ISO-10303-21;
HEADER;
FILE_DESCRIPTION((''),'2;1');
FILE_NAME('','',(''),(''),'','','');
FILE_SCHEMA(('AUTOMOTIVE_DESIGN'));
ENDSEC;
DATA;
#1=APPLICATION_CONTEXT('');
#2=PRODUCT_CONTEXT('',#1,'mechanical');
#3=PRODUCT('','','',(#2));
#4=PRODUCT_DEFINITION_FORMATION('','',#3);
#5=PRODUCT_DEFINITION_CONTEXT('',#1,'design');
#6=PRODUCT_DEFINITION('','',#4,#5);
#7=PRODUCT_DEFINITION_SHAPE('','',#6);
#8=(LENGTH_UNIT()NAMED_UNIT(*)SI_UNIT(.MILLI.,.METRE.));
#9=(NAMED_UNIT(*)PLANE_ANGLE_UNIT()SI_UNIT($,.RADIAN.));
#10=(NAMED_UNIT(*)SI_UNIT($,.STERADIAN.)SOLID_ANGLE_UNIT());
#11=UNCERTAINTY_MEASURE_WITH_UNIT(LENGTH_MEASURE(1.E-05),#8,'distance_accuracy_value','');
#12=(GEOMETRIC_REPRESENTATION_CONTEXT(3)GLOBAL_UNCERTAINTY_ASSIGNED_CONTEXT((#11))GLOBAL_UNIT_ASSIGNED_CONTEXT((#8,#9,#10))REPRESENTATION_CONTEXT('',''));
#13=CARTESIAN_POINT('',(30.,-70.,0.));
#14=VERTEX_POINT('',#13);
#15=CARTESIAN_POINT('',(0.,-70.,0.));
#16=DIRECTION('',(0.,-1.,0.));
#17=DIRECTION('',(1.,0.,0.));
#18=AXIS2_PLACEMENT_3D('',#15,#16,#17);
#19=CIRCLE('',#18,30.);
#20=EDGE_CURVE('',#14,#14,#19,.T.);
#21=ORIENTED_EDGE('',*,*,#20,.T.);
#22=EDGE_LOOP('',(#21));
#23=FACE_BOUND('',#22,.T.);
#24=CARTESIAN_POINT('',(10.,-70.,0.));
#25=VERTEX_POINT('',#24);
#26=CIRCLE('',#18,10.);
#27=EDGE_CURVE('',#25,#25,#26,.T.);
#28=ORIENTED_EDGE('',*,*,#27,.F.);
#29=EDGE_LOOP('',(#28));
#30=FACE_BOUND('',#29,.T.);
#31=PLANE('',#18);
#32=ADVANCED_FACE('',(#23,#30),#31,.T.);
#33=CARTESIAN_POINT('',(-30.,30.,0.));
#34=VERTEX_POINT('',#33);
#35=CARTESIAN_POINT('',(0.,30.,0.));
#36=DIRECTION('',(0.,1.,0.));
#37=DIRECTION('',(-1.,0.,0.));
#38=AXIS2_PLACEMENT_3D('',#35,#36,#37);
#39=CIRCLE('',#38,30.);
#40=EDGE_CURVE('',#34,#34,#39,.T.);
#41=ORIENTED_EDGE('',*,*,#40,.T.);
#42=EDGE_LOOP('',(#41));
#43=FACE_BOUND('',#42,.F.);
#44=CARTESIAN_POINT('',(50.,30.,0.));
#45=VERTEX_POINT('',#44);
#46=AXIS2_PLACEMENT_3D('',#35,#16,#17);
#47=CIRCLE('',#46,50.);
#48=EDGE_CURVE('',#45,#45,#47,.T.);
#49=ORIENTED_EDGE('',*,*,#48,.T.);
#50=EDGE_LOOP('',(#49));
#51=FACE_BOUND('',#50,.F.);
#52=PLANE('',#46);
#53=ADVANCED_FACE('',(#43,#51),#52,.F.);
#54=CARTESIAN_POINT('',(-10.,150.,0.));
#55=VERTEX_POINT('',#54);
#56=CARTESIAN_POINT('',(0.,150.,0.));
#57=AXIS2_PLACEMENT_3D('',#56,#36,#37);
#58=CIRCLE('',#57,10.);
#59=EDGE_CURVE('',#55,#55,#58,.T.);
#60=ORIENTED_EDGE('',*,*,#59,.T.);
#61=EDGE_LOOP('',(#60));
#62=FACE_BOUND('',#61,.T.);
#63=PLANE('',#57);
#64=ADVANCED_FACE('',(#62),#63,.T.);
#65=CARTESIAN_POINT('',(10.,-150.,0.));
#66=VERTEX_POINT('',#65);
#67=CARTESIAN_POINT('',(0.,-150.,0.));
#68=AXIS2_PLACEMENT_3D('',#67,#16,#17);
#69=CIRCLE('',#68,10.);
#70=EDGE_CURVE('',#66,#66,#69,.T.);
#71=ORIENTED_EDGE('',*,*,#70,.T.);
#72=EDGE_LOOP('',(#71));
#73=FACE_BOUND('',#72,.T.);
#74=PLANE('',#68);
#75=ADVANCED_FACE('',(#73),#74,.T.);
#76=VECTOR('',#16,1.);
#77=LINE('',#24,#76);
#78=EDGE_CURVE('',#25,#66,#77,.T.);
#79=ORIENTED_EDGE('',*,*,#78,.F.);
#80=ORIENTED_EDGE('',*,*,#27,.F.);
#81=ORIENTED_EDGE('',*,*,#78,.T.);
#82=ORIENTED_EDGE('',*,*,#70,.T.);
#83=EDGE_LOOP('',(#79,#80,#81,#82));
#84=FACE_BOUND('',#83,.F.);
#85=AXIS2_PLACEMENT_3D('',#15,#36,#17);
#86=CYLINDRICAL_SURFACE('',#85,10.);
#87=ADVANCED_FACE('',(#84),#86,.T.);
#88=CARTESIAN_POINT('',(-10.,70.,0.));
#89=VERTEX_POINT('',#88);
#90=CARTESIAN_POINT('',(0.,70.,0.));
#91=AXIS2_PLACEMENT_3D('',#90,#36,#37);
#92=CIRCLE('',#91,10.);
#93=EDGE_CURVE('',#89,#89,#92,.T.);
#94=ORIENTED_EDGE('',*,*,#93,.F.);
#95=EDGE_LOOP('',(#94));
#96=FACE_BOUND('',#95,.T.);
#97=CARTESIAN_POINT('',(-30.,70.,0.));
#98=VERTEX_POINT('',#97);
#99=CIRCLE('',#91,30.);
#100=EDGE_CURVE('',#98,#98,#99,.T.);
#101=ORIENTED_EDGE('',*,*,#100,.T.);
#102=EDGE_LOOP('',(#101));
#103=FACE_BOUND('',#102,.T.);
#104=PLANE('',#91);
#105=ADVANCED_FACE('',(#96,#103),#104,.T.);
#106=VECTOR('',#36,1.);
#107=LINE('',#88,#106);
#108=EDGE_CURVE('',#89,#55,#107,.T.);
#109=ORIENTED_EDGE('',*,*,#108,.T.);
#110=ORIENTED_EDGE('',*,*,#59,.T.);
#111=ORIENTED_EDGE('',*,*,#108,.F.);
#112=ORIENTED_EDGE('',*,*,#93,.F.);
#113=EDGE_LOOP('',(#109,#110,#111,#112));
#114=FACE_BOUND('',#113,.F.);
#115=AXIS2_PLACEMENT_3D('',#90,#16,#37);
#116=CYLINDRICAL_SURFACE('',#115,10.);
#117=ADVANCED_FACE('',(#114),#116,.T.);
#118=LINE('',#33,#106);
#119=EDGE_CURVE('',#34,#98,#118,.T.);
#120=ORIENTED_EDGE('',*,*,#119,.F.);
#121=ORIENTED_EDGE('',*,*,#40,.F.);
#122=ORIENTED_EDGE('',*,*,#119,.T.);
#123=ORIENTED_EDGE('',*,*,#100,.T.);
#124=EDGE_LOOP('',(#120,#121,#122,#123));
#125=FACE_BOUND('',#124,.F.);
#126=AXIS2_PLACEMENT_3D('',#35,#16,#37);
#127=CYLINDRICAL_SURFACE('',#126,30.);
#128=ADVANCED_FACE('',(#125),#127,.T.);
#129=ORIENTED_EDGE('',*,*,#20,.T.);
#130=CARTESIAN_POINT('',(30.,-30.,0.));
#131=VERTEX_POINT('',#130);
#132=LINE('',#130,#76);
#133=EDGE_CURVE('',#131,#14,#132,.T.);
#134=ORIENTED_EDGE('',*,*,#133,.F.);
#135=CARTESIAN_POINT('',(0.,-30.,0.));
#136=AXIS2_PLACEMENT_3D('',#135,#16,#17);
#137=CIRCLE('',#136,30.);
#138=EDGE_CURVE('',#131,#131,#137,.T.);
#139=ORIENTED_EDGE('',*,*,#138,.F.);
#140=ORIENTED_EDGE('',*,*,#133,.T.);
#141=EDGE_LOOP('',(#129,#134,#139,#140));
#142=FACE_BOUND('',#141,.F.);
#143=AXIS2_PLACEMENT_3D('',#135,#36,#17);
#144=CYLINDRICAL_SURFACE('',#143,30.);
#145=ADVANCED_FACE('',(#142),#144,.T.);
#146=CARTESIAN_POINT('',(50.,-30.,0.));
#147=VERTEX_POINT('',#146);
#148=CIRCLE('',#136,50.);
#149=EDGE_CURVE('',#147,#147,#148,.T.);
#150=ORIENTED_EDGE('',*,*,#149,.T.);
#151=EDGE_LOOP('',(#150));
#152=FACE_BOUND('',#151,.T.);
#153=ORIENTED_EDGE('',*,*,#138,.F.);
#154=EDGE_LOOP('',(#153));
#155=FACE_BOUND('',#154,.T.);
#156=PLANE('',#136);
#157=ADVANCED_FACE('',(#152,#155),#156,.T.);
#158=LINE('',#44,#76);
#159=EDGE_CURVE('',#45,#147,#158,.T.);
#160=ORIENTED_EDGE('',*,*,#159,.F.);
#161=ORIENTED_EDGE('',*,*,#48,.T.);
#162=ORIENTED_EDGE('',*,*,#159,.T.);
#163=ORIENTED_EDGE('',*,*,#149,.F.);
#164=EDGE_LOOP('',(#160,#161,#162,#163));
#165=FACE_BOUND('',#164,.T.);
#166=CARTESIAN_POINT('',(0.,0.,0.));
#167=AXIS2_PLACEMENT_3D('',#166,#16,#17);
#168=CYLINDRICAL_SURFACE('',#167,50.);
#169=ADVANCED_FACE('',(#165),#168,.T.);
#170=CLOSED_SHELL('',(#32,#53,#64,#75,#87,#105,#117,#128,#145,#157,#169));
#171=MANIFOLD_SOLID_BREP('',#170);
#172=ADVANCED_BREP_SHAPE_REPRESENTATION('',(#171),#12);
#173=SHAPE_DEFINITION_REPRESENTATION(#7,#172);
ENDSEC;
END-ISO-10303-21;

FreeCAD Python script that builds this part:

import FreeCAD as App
import Part
import Sketcher
from FreeCAD import Vector

doc = App.newDocument("Part")
params = doc.addObject("Spreadsheet::Sheet", "Params")
for row, (alias, value) in enumerate([
    ("sketch1_diameter", "100 mm"),
    ("pad1_length", "60 mm"),
    ("sketch2_diameter", "60 mm"),
    ("pad2_length", "40 mm"),
    ("sketch3_diameter", "60 mm"),
    ("pad3_length", "40 mm"),
    ("sketch4_diameter", "20 mm"),
    ("pad4_length", "80 mm"),
    ("sketch5_diameter", "20 mm"),
    ("pad5_length", "80 mm"),
], start=1):
    params.set(f"A{row}", alias)
    params.set(f"B{row}", "=" + value)
    params.setAlias(f"B{row}", alias)

body = doc.addObject("PartDesign::Body", "Body")

# Sketch on XZ plane
sketch1 = body.newObject("Sketcher::SketchObject", "Sketch")
sketch1.AttachmentSupport = (doc.getObject("XZ_Plane"), [""])
sketch1.MapMode = "FlatFace"
sketch1.addGeometry(Part.Circle(Vector(0, 0, 0), Vector(0, 0, 1), 50), False)
sketch1.addConstraint([
    Sketcher.Constraint("Coincident", 0, 3, -1, 1),
    Sketcher.Constraint("Diameter", 0, 100.0),
])
sketch1.setExpression("Constraints[1]", "Params.sketch1_diameter")
pad1 = body.newObject("PartDesign::Pad", "Pad")
pad1.Profile = sketch1
pad1.setExpression("Length", "Params.pad1_length")
pad1.Midplane = True

# Sketch on XZ plane
sketch2 = body.newObject("Sketcher::SketchObject", "Sketch001")
sketch2.AttachmentSupport = (doc.getObject("XZ_Plane"), [""])
sketch2.MapMode = "FlatFace"
sketch2.AttachmentOffset = App.Placement(Vector(0, 0, 30), App.Rotation())
sketch2.addGeometry(Part.Circle(Vector(0, 0, 0), Vector(0, 0, 1), 30), False)
sketch2.addConstraint([
    Sketcher.Constraint("Coincident", 0, 3, -1, 1),
    Sketcher.Constraint("Diameter", 0, 60.0),
])
sketch2.setExpression("Constraints[1]", "Params.sketch2_diameter")
pad2 = body.newObject("PartDesign::Pad", "Pad001")
pad2.Profile = sketch2
pad2.setExpression("Length", "Params.pad2_length")

# Sketch on XZ plane
sketch3 = body.newObject("Sketcher::SketchObject", "Sketch002")
sketch3.AttachmentSupport = (doc.getObject("XZ_Plane"), [""])
sketch3.MapMode = "FlatFace"
sketch3.AttachmentOffset = App.Placement(Vector(0, 0, -30), App.Rotation())
sketch3.addGeometry(Part.Circle(Vector(0, 0, 0), Vector(0, 0, 1), 30), False)
sketch3.addConstraint([
    Sketcher.Constraint("Coincident", 0, 3, -1, 1),
    Sketcher.Constraint("Diameter", 0, 60.0),
])
sketch3.setExpression("Constraints[1]", "Params.sketch3_diameter")
pad3 = body.newObject("PartDesign::Pad", "Pad002")
pad3.Profile = sketch3
pad3.setExpression("Length", "Params.pad3_length")
pad3.Reversed = True

# Sketch on XZ plane
sketch4 = body.newObject("Sketcher::SketchObject", "Sketch003")
sketch4.AttachmentSupport = (doc.getObject("XZ_Plane"), [""])
sketch4.MapMode = "FlatFace"
sketch4.AttachmentOffset = App.Placement(Vector(0, 0, 70), App.Rotation())
sketch4.addGeometry(Part.Circle(Vector(0, 0, 0), Vector(0, 0, 1), 10), False)
sketch4.addConstraint([
    Sketcher.Constraint("Coincident", 0, 3, -1, 1),
    Sketcher.Constraint("Diameter", 0, 20.0),
])
sketch4.setExpression("Constraints[1]", "Params.sketch4_diameter")
pad4 = body.newObject("PartDesign::Pad", "Pad003")
pad4.Profile = sketch4
pad4.setExpression("Length", "Params.pad4_length")

# Sketch on XZ plane
sketch5 = body.newObject("Sketcher::SketchObject", "Sketch004")
sketch5.AttachmentSupport = (doc.getObject("XZ_Plane"), [""])
sketch5.MapMode = "FlatFace"
sketch5.AttachmentOffset = App.Placement(Vector(0, 0, -70), App.Rotation())
sketch5.addGeometry(Part.Circle(Vector(0, 0, 0), Vector(0, 0, 1), 10), False)
sketch5.addConstraint([
    Sketcher.Constraint("Coincident", 0, 3, -1, 1),
    Sketcher.Constraint("Diameter", 0, 20.0),
])
sketch5.setExpression("Constraints[1]", "Params.sketch5_diameter")
pad5 = body.newObject("PartDesign::Pad", "Pad004")
pad5.Profile = sketch5
pad5.setExpression("Length", "Params.pad5_length")
pad5.Reversed = True

doc.recompute()
